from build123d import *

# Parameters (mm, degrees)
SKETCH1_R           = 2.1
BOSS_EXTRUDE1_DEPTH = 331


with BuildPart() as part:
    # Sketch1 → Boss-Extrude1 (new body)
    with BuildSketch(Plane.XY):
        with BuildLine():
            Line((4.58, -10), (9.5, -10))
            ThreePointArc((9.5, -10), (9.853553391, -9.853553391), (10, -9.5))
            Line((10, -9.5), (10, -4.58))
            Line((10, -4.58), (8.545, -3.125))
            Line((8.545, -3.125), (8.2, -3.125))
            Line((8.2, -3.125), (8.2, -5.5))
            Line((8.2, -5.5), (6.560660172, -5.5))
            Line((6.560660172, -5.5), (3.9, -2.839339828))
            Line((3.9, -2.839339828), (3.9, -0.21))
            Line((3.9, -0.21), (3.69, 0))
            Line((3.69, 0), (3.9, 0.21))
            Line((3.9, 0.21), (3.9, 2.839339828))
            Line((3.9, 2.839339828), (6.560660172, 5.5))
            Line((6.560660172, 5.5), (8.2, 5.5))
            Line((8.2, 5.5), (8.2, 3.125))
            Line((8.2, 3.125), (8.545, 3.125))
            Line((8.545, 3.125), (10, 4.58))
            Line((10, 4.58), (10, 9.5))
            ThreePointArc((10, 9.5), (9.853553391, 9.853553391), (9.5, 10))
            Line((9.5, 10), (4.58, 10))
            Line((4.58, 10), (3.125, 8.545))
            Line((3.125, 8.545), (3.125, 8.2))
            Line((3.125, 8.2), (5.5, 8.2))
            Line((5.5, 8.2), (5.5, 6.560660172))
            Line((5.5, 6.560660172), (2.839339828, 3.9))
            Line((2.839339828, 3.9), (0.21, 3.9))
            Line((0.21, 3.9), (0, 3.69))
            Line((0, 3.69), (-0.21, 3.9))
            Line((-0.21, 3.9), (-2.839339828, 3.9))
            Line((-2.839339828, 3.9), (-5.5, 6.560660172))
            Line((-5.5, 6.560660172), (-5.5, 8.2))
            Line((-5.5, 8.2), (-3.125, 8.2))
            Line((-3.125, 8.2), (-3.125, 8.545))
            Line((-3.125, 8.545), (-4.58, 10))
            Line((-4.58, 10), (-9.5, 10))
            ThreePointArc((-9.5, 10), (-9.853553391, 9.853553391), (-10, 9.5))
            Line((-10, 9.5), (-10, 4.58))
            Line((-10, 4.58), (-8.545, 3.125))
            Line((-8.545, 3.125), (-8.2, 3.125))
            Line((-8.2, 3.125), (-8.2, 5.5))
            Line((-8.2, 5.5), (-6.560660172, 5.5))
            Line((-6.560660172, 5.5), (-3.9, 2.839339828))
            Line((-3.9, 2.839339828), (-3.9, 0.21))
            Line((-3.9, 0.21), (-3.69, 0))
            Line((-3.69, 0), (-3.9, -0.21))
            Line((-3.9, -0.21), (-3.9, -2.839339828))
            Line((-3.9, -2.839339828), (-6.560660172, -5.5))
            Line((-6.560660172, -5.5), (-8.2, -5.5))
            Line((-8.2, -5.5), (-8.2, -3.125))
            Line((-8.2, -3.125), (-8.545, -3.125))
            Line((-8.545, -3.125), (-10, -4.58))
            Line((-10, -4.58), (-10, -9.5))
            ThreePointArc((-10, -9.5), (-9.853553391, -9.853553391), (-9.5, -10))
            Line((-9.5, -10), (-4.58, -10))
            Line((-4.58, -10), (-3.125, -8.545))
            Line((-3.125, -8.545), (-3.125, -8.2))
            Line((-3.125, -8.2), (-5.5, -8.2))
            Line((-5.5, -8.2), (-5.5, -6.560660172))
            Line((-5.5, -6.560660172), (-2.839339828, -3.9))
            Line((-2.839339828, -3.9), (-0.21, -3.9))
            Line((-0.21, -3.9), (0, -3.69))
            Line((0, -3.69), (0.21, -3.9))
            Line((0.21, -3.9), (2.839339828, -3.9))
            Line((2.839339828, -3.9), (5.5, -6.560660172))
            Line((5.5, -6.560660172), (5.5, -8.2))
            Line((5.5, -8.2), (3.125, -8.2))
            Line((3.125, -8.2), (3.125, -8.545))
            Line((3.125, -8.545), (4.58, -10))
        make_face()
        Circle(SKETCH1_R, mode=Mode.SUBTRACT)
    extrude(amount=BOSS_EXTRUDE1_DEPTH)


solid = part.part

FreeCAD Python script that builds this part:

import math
import FreeCAD as App
import Part
import Sketcher
Q = App.Units.Quantity

doc = App.newDocument("Part")
body = doc.addObject("PartDesign::Body", "Body")

# Sketch on XY plane
sketch1 = body.newObject("Sketcher::SketchObject", "Sketch")
sketch1.AttachmentSupport = (doc.getObject("XY_Plane"), [""])
sketch1.MapMode = "FlatFace"
sketch1.addGeometry([
    Part.LineSegment(App.Vector(4.58, -10, 0), App.Vector(9.5, -10, 0)),  # 0
    Part.ArcOfCircle(Part.Circle(App.Vector(9.5, -9.5, 0), App.Vector(0, 0, 1), 0.5), math.radians(-90), math.radians(0)),  # 1
    Part.LineSegment(App.Vector(10, -9.5, 0), App.Vector(10, -4.58, 0)),  # 2
    Part.LineSegment(App.Vector(10, -4.58, 0), App.Vector(8.54, -3.12, 0)),  # 3
    Part.LineSegment(App.Vector(8.54, -3.12, 0), App.Vector(8.2, -3.12, 0)),  # 4
    Part.LineSegment(App.Vector(8.2, -3.12, 0), App.Vector(8.2, -5.5, 0)),  # 5
    Part.LineSegment(App.Vector(8.2, -5.5, 0), App.Vector(6.56, -5.5, 0)),  # 6
    Part.LineSegment(App.Vector(6.56, -5.5, 0), App.Vector(3.9, -2.84, 0)),  # 7
    Part.LineSegment(App.Vector(3.9, -2.84, 0), App.Vector(3.9, -0.21, 0)),  # 8
    Part.LineSegment(App.Vector(3.9, -0.21, 0), App.Vector(3.69, 0, 0)),  # 9
    Part.LineSegment(App.Vector(3.69, 0, 0), App.Vector(3.9, 0.21, 0)),  # 10
    Part.LineSegment(App.Vector(3.9, 0.21, 0), App.Vector(3.9, 2.84, 0)),  # 11
    Part.LineSegment(App.Vector(3.9, 2.84, 0), App.Vector(6.56, 5.5, 0)),  # 12
    Part.LineSegment(App.Vector(6.56, 5.5, 0), App.Vector(8.2, 5.5, 0)),  # 13
    Part.LineSegment(App.Vector(8.2, 5.5, 0), App.Vector(8.2, 3.12, 0)),  # 14
    Part.LineSegment(App.Vector(8.2, 3.12, 0), App.Vector(8.54, 3.12, 0)),  # 15
    Part.LineSegment(App.Vector(8.54, 3.12, 0), App.Vector(10, 4.58, 0)),  # 16
    Part.LineSegment(App.Vector(10, 4.58, 0), App.Vector(10, 9.5, 0)),  # 17
    Part.ArcOfCircle(Part.Circle(App.Vector(9.5, 9.5, 0), App.Vector(0, 0, 1), 0.5), math.radians(0), math.radians(90)),  # 18
    Part.LineSegment(App.Vector(9.5, 10, 0), App.Vector(4.58, 10, 0)),  # 19
    Part.LineSegment(App.Vector(4.58, 10, 0), App.Vector(3.12, 8.54, 0)),  # 20
    Part.LineSegment(App.Vector(3.12, 8.54, 0), App.Vector(3.12, 8.2, 0)),  # 21
    Part.LineSegment(App.Vector(3.12, 8.2, 0), App.Vector(5.5, 8.2, 0)),  # 22
    Part.LineSegment(App.Vector(5.5, 8.2, 0), App.Vector(5.5, 6.56, 0)),  # 23
    Part.LineSegment(App.Vector(5.5, 6.56, 0), App.Vector(2.84, 3.9, 0)),  # 24
    Part.LineSegment(App.Vector(2.84, 3.9, 0), App.Vector(0.21, 3.9, 0)),  # 25
    Part.LineSegment(App.Vector(0.21, 3.9, 0), App.Vector(0, 3.69, 0)),  # 26
    Part.LineSegment(App.Vector(0, 3.69, 0), App.Vector(-0.21, 3.9, 0)),  # 27
    Part.LineSegment(App.Vector(-0.21, 3.9, 0), App.Vector(-2.84, 3.9, 0)),  # 28
    Part.LineSegment(App.Vector(-2.84, 3.9, 0), App.Vector(-5.5, 6.56, 0)),  # 29
    Part.LineSegment(App.Vector(-5.5, 6.56, 0), App.Vector(-5.5, 8.2, 0)),  # 30
    Part.LineSegment(App.Vector(-5.5, 8.2, 0), App.Vector(-3.12, 8.2, 0)),  # 31
    Part.LineSegment(App.Vector(-3.12, 8.2, 0), App.Vector(-3.12, 8.54, 0)),  # 32
    Part.LineSegment(App.Vector(-3.12, 8.54, 0), App.Vector(-4.58, 10, 0)),  # 33
    Part.LineSegment(App.Vector(-4.58, 10, 0), App.Vector(-9.5, 10, 0)),  # 34
    Part.ArcOfCircle(Part.Circle(App.Vector(-9.5, 9.5, 0), App.Vector(0, 0, 1), 0.5), math.radians(90), math.radians(180)),  # 35
    Part.LineSegment(App.Vector(-10, 9.5, 0), App.Vector(-10, 4.58, 0)),  # 36
    Part.LineSegment(App.Vector(-10, 4.58, 0), App.Vector(-8.54, 3.12, 0)),  # 37
    Part.LineSegment(App.Vector(-8.54, 3.12, 0), App.Vector(-8.2, 3.12, 0)),  # 38
    Part.LineSegment(App.Vector(-8.2, 3.12, 0), App.Vector(-8.2, 5.5, 0)),  # 39
    Part.LineSegment(App.Vector(-8.2, 5.5, 0), App.Vector(-6.56, 5.5, 0)),  # 40
    Part.LineSegment(App.Vector(-6.56, 5.5, 0), App.Vector(-3.9, 2.84, 0)),  # 41
    Part.LineSegment(App.Vector(-3.9, 2.84, 0), App.Vector(-3.9, 0.21, 0)),  # 42
    Part.LineSegment(App.Vector(-3.9, 0.21, 0), App.Vector(-3.69, 0, 0)),  # 43
    Part.LineSegment(App.Vector(-3.69, 0, 0), App.Vector(-3.9, -0.21, 0)),  # 44
    Part.LineSegment(App.Vector(-3.9, -0.21, 0), App.Vector(-3.9, -2.84, 0)),  # 45
    Part.LineSegment(App.Vector(-3.9, -2.84, 0), App.Vector(-6.56, -5.5, 0)),  # 46
    Part.LineSegment(App.Vector(-6.56, -5.5, 0), App.Vector(-8.2, -5.5, 0)),  # 47
    Part.LineSegment(App.Vector(-8.2, -5.5, 0), App.Vector(-8.2, -3.12, 0)),  # 48
    Part.LineSegment(App.Vector(-8.2, -3.12, 0), App.Vector(-8.54, -3.12, 0)),  # 49
    Part.LineSegment(App.Vector(-8.54, -3.12, 0), App.Vector(-10, -4.58, 0)),  # 50
    Part.LineSegment(App.Vector(-10, -4.58, 0), App.Vector(-10, -9.5, 0)),  # 51
    Part.ArcOfCircle(Part.Circle(App.Vector(-9.5, -9.5, 0), App.Vector(0, 0, 1), 0.5), math.radians(180), math.radians(270)),  # 52
    Part.LineSegment(App.Vector(-9.5, -10, 0), App.Vector(-4.58, -10, 0)),  # 53
    Part.LineSegment(App.Vector(-4.58, -10, 0), App.Vector(-3.12, -8.54, 0)),  # 54
    Part.LineSegment(App.Vector(-3.12, -8.54, 0), App.Vector(-3.12, -8.2, 0)),  # 55
    Part.LineSegment(App.Vector(-3.12, -8.2, 0), App.Vector(-5.5, -8.2, 0)),  # 56
    Part.LineSegment(App.Vector(-5.5, -8.2, 0), App.Vector(-5.5, -6.56, 0)),  # 57
    Part.LineSegment(App.Vector(-5.5, -6.56, 0), App.Vector(-2.84, -3.9, 0)),  # 58
    Part.LineSegment(App.Vector(-2.84, -3.9, 0), App.Vector(-0.21, -3.9, 0)),  # 59
    Part.LineSegment(App.Vector(-0.21, -3.9, 0), App.Vector(0, -3.69, 0)),  # 60
    Part.LineSegment(App.Vector(0, -3.69, 0), App.Vector(0.21, -3.9, 0)),  # 61
    Part.LineSegment(App.Vector(0.21, -3.9, 0), App.Vector(2.84, -3.9, 0)),  # 62
    Part.LineSegment(App.Vector(2.84, -3.9, 0), App.Vector(5.5, -6.56, 0)),  # 63
    Part.LineSegment(App.Vector(5.5, -6.56, 0), App.Vector(5.5, -8.2, 0)),  # 64
    Part.LineSegment(App.Vector(5.5, -8.2, 0), App.Vector(3.12, -8.2, 0)),  # 65
    Part.LineSegment(App.Vector(3.12, -8.2, 0), App.Vector(3.12, -8.54, 0)),  # 66
    Part.LineSegment(App.Vector(3.12, -8.54, 0), App.Vector(4.58, -10, 0)),  # 67
    Part.Circle(App.Vector(0, 0, 0), App.Vector(0, 0, 1), 2.1),  # 68
], False)
sketch1.addConstraint([
    Sketcher.Constraint("Tangent", 0, 2, 1, 1),
    Sketcher.Constraint("Tangent", 1, 2, 2, 1),
    Sketcher.Constraint("Coincident", 2, 2, 3, 1),
    Sketcher.Constraint("Coincident", 3, 2, 4, 1),
    Sketcher.Constraint("Coincident", 4, 2, 5, 1),
    Sketcher.Constraint("Coincident", 5, 2, 6, 1),
    Sketcher.Constraint("Coincident", 6, 2, 7, 1),
    Sketcher.Constraint("Coincident", 7, 2, 8, 1),
    Sketcher.Constraint("Coincident", 8, 2, 9, 1),
    Sketcher.Constraint("Coincident", 9, 2, 10, 1),
    Sketcher.Constraint("Coincident", 10, 2, 11, 1),
    Sketcher.Constraint("Coincident", 11, 2, 12, 1),
    Sketcher.Constraint("Coincident", 12, 2, 13, 1),
    Sketcher.Constraint("Coincident", 13, 2, 14, 1),
    Sketcher.Constraint("Coincident", 14, 2, 15, 1),
    Sketcher.Constraint("Coincident", 15, 2, 16, 1),
    Sketcher.Constraint("Coincident", 16, 2, 17, 1),
    Sketcher.Constraint("Tangent", 17, 2, 18, 1),
    Sketcher.Constraint("Tangent", 18, 2, 19, 1),
    Sketcher.Constraint("Coincident", 19, 2, 20, 1),
    Sketcher.Constraint("Coincident", 20, 2, 21, 1),
    Sketcher.Constraint("Coincident", 21, 2, 22, 1),
    Sketcher.Constraint("Coincident", 22, 2, 23, 1),
    Sketcher.Constraint("Coincident", 23, 2, 24, 1),
    Sketcher.Constraint("Coincident", 24, 2, 25, 1),
    Sketcher.Constraint("Coincident", 25, 2, 26, 1),
    Sketcher.Constraint("Coincident", 26, 2, 27, 1),
    Sketcher.Constraint("Coincident", 27, 2, 28, 1),
    Sketcher.Constraint("Coincident", 28, 2, 29, 1),
    Sketcher.Constraint("Coincident", 29, 2, 30, 1),
    Sketcher.Constraint("Coincident", 30, 2, 31, 1),
    Sketcher.Constraint("Coincident", 31, 2, 32, 1),
    Sketcher.Constraint("Coincident", 32, 2, 33, 1),
    Sketcher.Constraint("Coincident", 33, 2, 34, 1),
    Sketcher.Constraint("Tangent", 34, 2, 35, 1),
    Sketcher.Constraint("Tangent", 35, 2, 36, 1),
    Sketcher.Constraint("Coincident", 36, 2, 37, 1),
    Sketcher.Constraint("Coincident", 37, 2, 38, 1),
    Sketcher.Constraint("Coincident", 38, 2, 39, 1),
    Sketcher.Constraint("Coincident", 39, 2, 40, 1),
    Sketcher.Constraint("Coincident", 40, 2, 41, 1),
    Sketcher.Constraint("Coincident", 41, 2, 42, 1),
    Sketcher.Constraint("Coincident", 42, 2, 43, 1),
    Sketcher.Constraint("Coincident", 43, 2, 44, 1),
    Sketcher.Constraint("Coincident", 44, 2, 45, 1),
    Sketcher.Constraint("Coincident", 45, 2, 46, 1),
    Sketcher.Constraint("Coincident", 46, 2, 47, 1),
    Sketcher.Constraint("Coincident", 47, 2, 48, 1),
    Sketcher.Constraint("Coincident", 48, 2, 49, 1),
    Sketcher.Constraint("Coincident", 49, 2, 50, 1),
    Sketcher.Constraint("Coincident", 50, 2, 51, 1),
    Sketcher.Constraint("Tangent", 51, 2, 52, 1),
    Sketcher.Constraint("Tangent", 52, 2, 53, 1),
    Sketcher.Constraint("Coincident", 53, 2, 54, 1),
    Sketcher.Constraint("Coincident", 54, 2, 55, 1),
    Sketcher.Constraint("Coincident", 55, 2, 56, 1),
    Sketcher.Constraint("Coincident", 56, 2, 57, 1),
    Sketcher.Constraint("Coincident", 57, 2, 58, 1),
    Sketcher.Constraint("Coincident", 58, 2, 59, 1),
    Sketcher.Constraint("Coincident", 59, 2, 60, 1),
    Sketcher.Constraint("Coincident", 60, 2, 61, 1),
    Sketcher.Constraint("Coincident", 61, 2, 62, 1),
    Sketcher.Constraint("Coincident", 62, 2, 63, 1),
    Sketcher.Constraint("Coincident", 63, 2, 64, 1),
    Sketcher.Constraint("Coincident", 64, 2, 65, 1),
    Sketcher.Constraint("Coincident", 65, 2, 66, 1),
    Sketcher.Constraint("Coincident", 66, 2, 67, 1),
    Sketcher.Constraint("Coincident", 67, 2, 0, 1),
    Sketcher.Constraint("Horizontal", 0),
    Sketcher.Constraint("Vertical", 2),
    Sketcher.Constraint("Horizontal", 4),
    Sketcher.Constraint("Vertical", 5),
    Sketcher.Constraint("Horizontal", 6),
    Sketcher.Constraint("Vertical", 8),
    Sketcher.Constraint("Vertical", 11),
    Sketcher.Constraint("Horizontal", 13),
    Sketcher.Constraint("Vertical", 14),
    Sketcher.Constraint("Horizontal", 15),
    Sketcher.Constraint("Vertical", 17),
    Sketcher.Constraint("Horizontal", 19),
    Sketcher.Constraint("Vertical", 21),
    Sketcher.Constraint("Horizontal", 22),
    Sketcher.Constraint("Vertical", 23),
    Sketcher.Constraint("Horizontal", 25),
    Sketcher.Constraint("Horizontal", 28),
    Sketcher.Constraint("Vertical", 30),
    Sketcher.Constraint("Horizontal", 31),
    Sketcher.Constraint("Vertical", 32),
    Sketcher.Constraint("Horizontal", 34),
    Sketcher.Constraint("Vertical", 36),
    Sketcher.Constraint("Horizontal", 38),
    Sketcher.Constraint("Vertical", 39),
    Sketcher.Constraint("Horizontal", 40),
    Sketcher.Constraint("Vertical", 42),
    Sketcher.Constraint("Vertical", 45),
    Sketcher.Constraint("Horizontal", 47),
    Sketcher.Constraint("Vertical", 48),
    Sketcher.Constraint("Horizontal", 49),
    Sketcher.Constraint("Vertical", 51),
    Sketcher.Constraint("Horizontal", 53),
    Sketcher.Constraint("Vertical", 55),
    Sketcher.Constraint("Horizontal", 56),
    Sketcher.Constraint("Vertical", 57),
    Sketcher.Constraint("Horizontal", 59),
    Sketcher.Constraint("Horizontal", 62),
    Sketcher.Constraint("Vertical", 64),
    Sketcher.Constraint("Horizontal", 65),
    Sketcher.Constraint("Vertical", 66),
    Sketcher.Constraint("Coincident", 68, 3, -1, 1),
    Sketcher.Constraint("Equal", 1, 18),
    Sketcher.Constraint("Equal", 18, 35),
    Sketcher.Constraint("Equal", 35, 52),
    Sketcher.Constraint("Symmetric", 1, 3, 35, 3, -1, 1),
    Sketcher.Constraint("Symmetric", 18, 3, 52, 3, -1, 1),
    Sketcher.Constraint("Symmetric", 3, 2, 37, 2, -1, 1),
    Sketcher.Constraint("Symmetric", 5, 2, 39, 2, -1, 1),
    Sketcher.Constraint("Symmetric", 7, 2, 41, 2, -1, 1),
    Sketcher.Constraint("Symmetric", 9, 2, 43, 2, -1, 1),
    Sketcher.Constraint("Symmetric", 10, 2, 44, 2, -1, 1),
    Sketcher.Constraint("Symmetric", 12, 2, 46, 2, -1, 1),
    Sketcher.Constraint("Symmetric", 14, 2, 48, 2, -1, 1),
    Sketcher.Constraint("Symmetric", 20, 2, 54, 2, -1, 1),
    Sketcher.Constraint("Symmetric", 22, 2, 56, 2, -1, 1),
    Sketcher.Constraint("Symmetric", 24, 2, 58, 2, -1, 1),
    Sketcher.Constraint("Symmetric", 26, 2, 60, 2, -1, 1),
    Sketcher.Constraint("Symmetric", 27, 2, 61, 2, -1, 1),
    Sketcher.Constraint("Symmetric", 29, 2, 63, 2, -1, 1),
    Sketcher.Constraint("Symmetric", 31, 2, 65, 2, -1, 1),
    Sketcher.Constraint("Symmetric", 18, 3, 35, 3, -2),
    Sketcher.Constraint("Symmetric", 25, 2, 27, 2, -2),
    Sketcher.Constraint("Symmetric", 23, 2, 29, 2, -2),
    Sketcher.Constraint("Symmetric", 21, 2, 31, 2, -2),
    Sketcher.Constraint("Symmetric", 15, 2, 37, 2, -2),
    Sketcher.Constraint("Symmetric", 13, 2, 39, 2, -2),
    Sketcher.Constraint("Symmetric", 11, 2, 41, 2, -2),
    Sketcher.Constraint("PointOnObject", 9, 2, -1),
    Sketcher.Constraint("PointOnObject", 26, 2, -2),
    Sketcher.Constraint("Parallel", 3, 7),
    Sketcher.Constraint("Parallel", 7, 9),
    Sketcher.Constraint("Perpendicular", 9, 10),
    Sketcher.Constraint("Parallel", 10, 12),
    Sketcher.Constraint("Parallel", 12, 16),
    Sketcher.Constraint("Parallel", 16, 20),
    Sketcher.Constraint("Parallel", 20, 24),
    Sketcher.Constraint("Parallel", 24, 26),
    Sketcher.Constraint("Perpendicular", 26, 27),
    Sketcher.Constraint("Parallel", 27, 29),
    Sketcher.Constraint("Parallel", 29, 33),
    Sketcher.Constraint("Parallel", 33, 37),
    Sketcher.Constraint("Parallel", 37, 41),
    Sketcher.Constraint("Parallel", 41, 43),
    Sketcher.Constraint("Parallel", 44, 46),
    Sketcher.Constraint("Parallel", 46, 50),
    Sketcher.Constraint("Parallel", 50, 54),
    Sketcher.Constraint("Parallel", 54, 58),
    Sketcher.Constraint("Parallel", 58, 60),
    Sketcher.Constraint("Parallel", 61, 63),
    Sketcher.Constraint("Parallel", 63, 67),
    Sketcher.Constraint("Horizontal", 20, 2, 32, 2),
    Sketcher.Constraint("Horizontal", 2, 2, 50, 2),
    Sketcher.Constraint("Horizontal", 54, 2, 66, 2),
    Sketcher.Constraint("Equal", 53, 2),
    Sketcher.Constraint("Equal", 65, 5),
    Sketcher.Constraint("Equal", 62, 8),
    Sketcher.Constraint("Equal", 49, 21),
    Sketcher.Constraint("Equal", 47, 23),
    Sketcher.Constraint("Equal", 16, 20),
    Sketcher.Constraint("Equal", 12, 24),
    Sketcher.Constraint("Equal", 10, 26),
    Sketcher.Constraint("Diameter", 68, Q("4.2 mm")),
    Sketcher.Constraint("Radius", 1, Q("0.5 mm")),
    Sketcher.Constraint("DistanceY", 0, 2, -1, 1, Q("10 mm")),
    Sketcher.Constraint("DistanceX", 0, 1, 0, 2, Q("4.92 mm")),
    Sketcher.Constraint("DistanceX", -1, 1, 4, 2, Q("8.2 mm")),
    Sketcher.Constraint("DistanceY", 5, 2, -1, 1, Q("5.5 mm")),
    Sketcher.Constraint("DistanceX", -1, 1, 7, 2, Q("3.9 mm")),
    Sketcher.Constraint("DistanceX", 4, 2, 4, 1, Q("0.345 mm")),
    Sketcher.Constraint("DistanceY", 8, 2, -1, 1, Q("0.21 mm")),
    Sketcher.Constraint("DistanceX", 6, 2, 6, 1, Q("1.63934 mm")),
])
pad1 = body.newObject("PartDesign::Pad", "Pad")
pad1.Profile = sketch1
pad1.Length = 331

doc.recompute()
